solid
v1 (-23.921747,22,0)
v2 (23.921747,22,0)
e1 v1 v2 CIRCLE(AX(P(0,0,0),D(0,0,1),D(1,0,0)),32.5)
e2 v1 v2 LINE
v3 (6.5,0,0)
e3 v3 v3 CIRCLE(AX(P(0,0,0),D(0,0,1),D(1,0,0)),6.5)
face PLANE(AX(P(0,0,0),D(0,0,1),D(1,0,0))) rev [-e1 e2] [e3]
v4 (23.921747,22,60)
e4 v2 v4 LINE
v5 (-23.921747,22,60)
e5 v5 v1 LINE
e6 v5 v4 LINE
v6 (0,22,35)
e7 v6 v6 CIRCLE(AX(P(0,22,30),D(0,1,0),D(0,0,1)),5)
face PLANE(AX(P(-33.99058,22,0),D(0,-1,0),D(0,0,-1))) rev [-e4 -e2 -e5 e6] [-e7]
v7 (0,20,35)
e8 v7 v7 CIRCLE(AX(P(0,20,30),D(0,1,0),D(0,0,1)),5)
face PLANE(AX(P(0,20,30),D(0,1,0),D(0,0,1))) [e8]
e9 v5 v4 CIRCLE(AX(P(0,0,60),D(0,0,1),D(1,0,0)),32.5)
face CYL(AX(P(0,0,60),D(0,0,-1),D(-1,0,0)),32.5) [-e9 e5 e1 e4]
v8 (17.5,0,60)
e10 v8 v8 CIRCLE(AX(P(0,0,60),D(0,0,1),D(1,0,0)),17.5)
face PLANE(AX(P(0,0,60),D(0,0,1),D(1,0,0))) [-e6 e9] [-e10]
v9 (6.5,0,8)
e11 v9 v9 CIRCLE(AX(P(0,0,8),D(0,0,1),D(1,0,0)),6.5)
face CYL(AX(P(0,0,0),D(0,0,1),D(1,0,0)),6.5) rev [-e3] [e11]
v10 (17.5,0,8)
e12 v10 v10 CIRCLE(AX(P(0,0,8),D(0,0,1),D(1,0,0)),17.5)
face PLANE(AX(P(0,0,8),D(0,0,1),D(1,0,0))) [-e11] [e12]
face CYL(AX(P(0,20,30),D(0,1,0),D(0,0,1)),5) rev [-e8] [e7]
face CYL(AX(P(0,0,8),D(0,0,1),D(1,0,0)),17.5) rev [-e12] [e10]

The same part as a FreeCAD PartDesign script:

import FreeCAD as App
import Part
import Sketcher
from FreeCAD import Vector

doc = App.newDocument("Part")
body = doc.addObject("PartDesign::Body", "Body")

sketch1 = body.newObject("Sketcher::SketchObject", "Sketch")
sketch1.AttachmentSupport = (doc.getObject("XY_Plane"), [""])
sketch1.MapMode = "FlatFace"
sketch1.addGeometry(Part.Circle(Vector(0, 0, 0), Vector(0, 0, 1), 32), False)
sketch1.addConstraint([
    Sketcher.Constraint("Coincident", 0, 3, -1, 1),
    Sketcher.Constraint("Diameter", 0, 65.0),
])
pad1 = body.newObject("PartDesign::Pad", "Pad")
pad1.Profile = sketch1
pad1.Length = 60

sketch2 = body.newObject("Sketcher::SketchObject", "Sketch001")
sketch2.AttachmentSupport = (doc.getObject("XY_Plane"), [""])
sketch2.MapMode = "FlatFace"
sketch2.AttachmentOffset = App.Placement(Vector(0, 0, 60), App.Rotation())
sketch2.addGeometry(Part.Circle(Vector(0, 0, 0), Vector(0, 0, 1), 18), False)
sketch2.addConstraint([
    Sketcher.Constraint("Coincident", 0, 3, -1, 1),
    Sketcher.Constraint("Diameter", 0, 35.0),
])
pocket1 = body.newObject("PartDesign::Pocket", "Pocket")
pocket1.Profile = sketch2
pocket1.Length = 52

sketch3 = body.newObject("Sketcher::SketchObject", "Sketch002")
sketch3.AttachmentSupport = (doc.getObject("XY_Plane"), [""])
sketch3.MapMode = "FlatFace"
sketch3.AttachmentOffset = App.Placement(Vector(0, 0, 8), App.Rotation())
sketch3.addGeometry(Part.Circle(Vector(0, 0, 0), Vector(0, 0, 1), 6), False)
sketch3.addConstraint([
    Sketcher.Constraint("Coincident", 0, 3, -1, 1),
    Sketcher.Constraint("Diameter", 0, 13.0),
])
pocket2 = body.newObject("PartDesign::Pocket", "Pocket001")
pocket2.Profile = sketch3
pocket2.Length = 8

sketch4 = body.newObject("Sketcher::SketchObject", "Sketch003")
sketch4.AttachmentSupport = (doc.getObject("XY_Plane"), [""])
sketch4.MapMode = "FlatFace"
sketch4.AttachmentOffset = App.Placement(Vector(0, 0, 60), App.Rotation())
sketch4.addGeometry([
    Part.LineSegment(Vector(-34, 34, 0), Vector(-34, 22, 0)),
    Part.LineSegment(Vector(-34, 22, 0), Vector(31, 22, 0)),
    Part.LineSegment(Vector(31, 22, 0), Vector(31, 34, 0)),
    Part.LineSegment(Vector(31, 34, 0), Vector(-34, 34, 0)),
], False)
sketch4.addConstraint([
    Sketcher.Constraint("Coincident", 0, 2, 1, 1),
    Sketcher.Constraint("Coincident", 1, 2, 2, 1),
    Sketcher.Constraint("Coincident", 2, 2, 3, 1),
    Sketcher.Constraint("Coincident", 3, 2, 0, 1),
    Sketcher.Constraint("Vertical", 0),
    Sketcher.Constraint("Horizontal", 1),
    Sketcher.Constraint("Vertical", 2),
    Sketcher.Constraint("Horizontal", 3),
    Sketcher.Constraint("DistanceY", -1, 1, 0, 2, 22.0),
    Sketcher.Constraint("DistanceX", 1, 1, 1, 2, 65.355872),
    Sketcher.Constraint("DistanceY", 0, 2, 0, 1, 11.921494),
    Sketcher.Constraint("DistanceX", 0, 2, -1, 1, 33.99058),
])
pocket3 = body.newObject("PartDesign::Pocket", "Pocket002")
pocket3.Profile = sketch4
pocket3.Length = 60

sketch5 = body.newObject("Sketcher::SketchObject", "Sketch004")
sketch5.AttachmentSupport = (doc.getObject("XZ_Plane"), [""])
sketch5.MapMode = "FlatFace"
sketch5.AttachmentOffset = App.Placement(Vector(0, 0, -22), App.Rotation())
sketch5.addGeometry(Part.Circle(Vector(0, 30, 0), Vector(0, 0, 1), 5), False)
sketch5.addConstraint([
    Sketcher.Constraint("PointOnObject", 0, 3, -2),
    Sketcher.Constraint("Diameter", 0, 10.0),
    Sketcher.Constraint("DistanceY", -1, 1, 0, 3, 30.0),
])
pocket4 = body.newObject("PartDesign::Pocket", "Pocket003")
pocket4.Profile = sketch5
pocket4.Length = 2
pocket4.Reversed = True

doc.recompute()
